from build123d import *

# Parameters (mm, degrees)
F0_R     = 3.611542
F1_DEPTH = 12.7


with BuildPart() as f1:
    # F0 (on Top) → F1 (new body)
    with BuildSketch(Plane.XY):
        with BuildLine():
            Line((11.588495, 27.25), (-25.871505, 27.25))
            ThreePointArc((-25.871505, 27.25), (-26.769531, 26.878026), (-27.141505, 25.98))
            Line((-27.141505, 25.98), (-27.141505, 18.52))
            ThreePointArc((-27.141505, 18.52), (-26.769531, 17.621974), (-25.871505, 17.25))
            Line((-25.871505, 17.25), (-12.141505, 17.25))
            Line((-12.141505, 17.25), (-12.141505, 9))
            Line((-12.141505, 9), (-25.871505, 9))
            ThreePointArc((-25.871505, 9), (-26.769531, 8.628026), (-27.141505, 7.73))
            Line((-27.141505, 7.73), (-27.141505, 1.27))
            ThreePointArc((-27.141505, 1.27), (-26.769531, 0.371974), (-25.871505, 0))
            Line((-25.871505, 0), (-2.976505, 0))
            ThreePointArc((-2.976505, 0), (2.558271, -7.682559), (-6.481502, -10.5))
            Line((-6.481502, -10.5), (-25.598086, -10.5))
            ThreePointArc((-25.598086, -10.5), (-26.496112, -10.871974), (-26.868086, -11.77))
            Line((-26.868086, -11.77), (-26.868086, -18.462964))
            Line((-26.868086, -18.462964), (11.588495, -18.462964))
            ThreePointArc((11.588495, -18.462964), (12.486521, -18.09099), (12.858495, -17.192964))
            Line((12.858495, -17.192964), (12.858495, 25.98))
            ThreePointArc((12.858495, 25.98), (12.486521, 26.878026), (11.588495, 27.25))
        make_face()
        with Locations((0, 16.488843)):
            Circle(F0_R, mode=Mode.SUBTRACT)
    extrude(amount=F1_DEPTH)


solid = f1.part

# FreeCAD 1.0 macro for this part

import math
import FreeCAD as App
import Part
import Sketcher
from FreeCAD import Vector
Q = App.Units.Quantity

doc = App.newDocument("Part")
params = doc.addObject("Spreadsheet::Sheet", "Params")
for row, (alias, value) in enumerate([
    ("sketch1_radius", "0.0499999 in"),
    ("pad1_length", "0.5 in"),
], start=1):
    params.set(f"A{row}", alias)
    params.set(f"B{row}", "=" + value)
    params.setAlias(f"B{row}", alias)

body = doc.addObject("PartDesign::Body", "Body")

sketch1 = doc.addObject("Sketcher::SketchObject", "Sketch")
body.addObject(sketch1)
sketch1.AttachmentSupport = (doc.XY_Plane, [""])
sketch1.MapMode = "FlatFace"
sketch1.addGeometry([
    Part.LineSegment(Vector(11.6, 27.2, 0), Vector(-25.9, 27.2, 0)),
    Part.ArcOfCircle(Part.Circle(Vector(-25.9, 26, 0), Vector(0, 0, 1), 1.3), math.radians(90), math.radians(180)),
    Part.LineSegment(Vector(-27.1, 26, 0), Vector(-27.1, 18.5, 0)),
    Part.ArcOfCircle(Part.Circle(Vector(-25.9, 18.5, 0), Vector(0, 0, 1), 1.3), math.radians(180), math.radians(270)),
    Part.LineSegment(Vector(-25.9, 17.2, 0), Vector(-12.1, 17.2, 0)),
    Part.LineSegment(Vector(-12.1, 17.2, 0), Vector(-12.1, 9, 0)),
    Part.LineSegment(Vector(-12.1, 9, 0), Vector(-25.9, 9, 0)),
    Part.ArcOfCircle(Part.Circle(Vector(-25.9, 7.7, 0), Vector(0, 0, 1), 1.3), math.radians(90), math.radians(180)),
    Part.LineSegment(Vector(-27.1, 7.7, 0), Vector(-27.1, 1.3, 0)),
    Part.ArcOfCircle(Part.Circle(Vector(-25.9, 1.3, 0), Vector(0, 0, 1), 1.3), math.radians(180), math.radians(270)),
    Part.LineSegment(Vector(-25.9, 0, 0), Vector(-3, 0, 0)),
    Part.ArcOfCircle(Part.Circle(Vector(-3, -5.8, 0), Vector(0, 0, 1), 5.8), math.radians(-127), math.radians(90)),
    Part.LineSegment(Vector(-6.5, -10.5, 0), Vector(-25.6, -10.5, 0)),
    Part.ArcOfCircle(Part.Circle(Vector(-25.6, -11.8, 0), Vector(0, 0, 1), 1.3), math.radians(90), math.radians(180)),
    Part.LineSegment(Vector(-26.9, -11.8, 0), Vector(-26.9, -18.5, 0)),
    Part.LineSegment(Vector(-26.9, -18.5, 0), Vector(11.6, -18.5, 0)),
    Part.ArcOfCircle(Part.Circle(Vector(11.6, -17.2, 0), Vector(0, 0, 1), 1.3), math.radians(-90), math.radians(0)),
    Part.LineSegment(Vector(12.9, -17.2, 0), Vector(12.9, 26, 0)),
    Part.ArcOfCircle(Part.Circle(Vector(11.6, 26, 0), Vector(0, 0, 1), 1.3), math.radians(0), math.radians(90)),
    Part.Circle(Vector(0, 16.5, 0), Vector(0, 0, 1), 3.6),
], False)
sketch1.addConstraint([
    Sketcher.Constraint("Tangent", 0, 2, 1, 1),
    Sketcher.Constraint("Tangent", 1, 2, 2, 1),
    Sketcher.Constraint("Tangent", 2, 2, 3, 1),
    Sketcher.Constraint("Tangent", 3, 2, 4, 1),
    Sketcher.Constraint("Coincident", 4, 2, 5, 1),
    Sketcher.Constraint("Coincident", 5, 2, 6, 1),
    Sketcher.Constraint("Tangent", 6, 2, 7, 1),
    Sketcher.Constraint("Tangent", 7, 2, 8, 1),
    Sketcher.Constraint("Tangent", 8, 2, 9, 1),
    Sketcher.Constraint("Tangent", 9, 2, 10, 1),
    Sketcher.Constraint("Tangent", 10, 2, 11, 2),
    Sketcher.Constraint("Coincident", 11, 1, 12, 1),
    Sketcher.Constraint("Tangent", 12, 2, 13, 1),
    Sketcher.Constraint("Tangent", 13, 2, 14, 1),
    Sketcher.Constraint("Coincident", 14, 2, 15, 1),
    Sketcher.Constraint("Tangent", 15, 2, 16, 1),
    Sketcher.Constraint("Tangent", 16, 2, 17, 1),
    Sketcher.Constraint("Tangent", 17, 2, 18, 1),
    Sketcher.Constraint("Tangent", 18, 2, 0, 1),
    Sketcher.Constraint("Horizontal", 0),
    Sketcher.Constraint("Vertical", 2),
    Sketcher.Constraint("Horizontal", 4),
    Sketcher.Constraint("Vertical", 5),
    Sketcher.Constraint("Horizontal", 6),
    Sketcher.Constraint("Vertical", 8),
    Sketcher.Constraint("Horizontal", 10),
    Sketcher.Constraint("Horizontal", 12),
    Sketcher.Constraint("Vertical", 14),
    Sketcher.Constraint("Horizontal", 15),
    Sketcher.Constraint("Vertical", 17),
    Sketcher.Constraint("Equal", 1, 3),
    Sketcher.Constraint("Equal", 3, 7),
    Sketcher.Constraint("Equal", 7, 9),
    Sketcher.Constraint("Equal", 9, 13),
    Sketcher.Constraint("Equal", 13, 16),
    Sketcher.Constraint("Equal", 16, 18),
    Sketcher.Constraint("PointOnObject", 19, 3, -2),
    Sketcher.Constraint("PointOnObject", 9, 2, -1),
    Sketcher.Constraint("Vertical", 3, 3, 7, 3),
    Sketcher.Constraint("Radius", 1, Q("0.0499999 in")),
    Sketcher.Constraint("Radius", 11, Q("5.835 mm")),
    Sketcher.Constraint("Diameter", 19, Q("7.223084 mm")),
    Sketcher.Constraint("DistanceX", 0, 2, 0, 1, Q("37.46 mm")),
    Sketcher.Constraint("DistanceX", 4, 1, 4, 2, Q("13.73 mm")),
    Sketcher.Constraint("DistanceX", 10, 1, 10, 2, Q("22.895 mm")),
    Sketcher.Constraint("DistanceY", 2, 2, 2, 1, Q("7.46 mm")),
    Sketcher.Constraint("DistanceY", 5, 2, 5, 1, Q("8.25 mm")),
    Sketcher.Constraint("DistanceY", 8, 2, 8, 1, Q("6.46 mm")),
    Sketcher.Constraint("DistanceX", 15, 1, 15, 2, Q("38.456581 mm")),
    Sketcher.Constraint("DistanceY", 13, 3, -1, 1, Q("11.769999 mm")),
    Sketcher.Constraint("DistanceY", 14, 2, 14, 1, Q("6.692964 mm")),
    Sketcher.Constraint("DistanceY", 19, 3, 18, 3, Q("9.491158 mm")),
    Sketcher.Constraint("DistanceX", 1, 3, -1, 1, Q("25.871506 mm")),
])
sketch1.setExpression("Constraints[39]", "Params.sketch1_radius")
pad1 = doc.addObject("PartDesign::Pad", "Pad")
body.addObject(pad1)
pad1.Profile = sketch1
pad1.setExpression("Length", "Params.pad1_length")

doc.recompute()
